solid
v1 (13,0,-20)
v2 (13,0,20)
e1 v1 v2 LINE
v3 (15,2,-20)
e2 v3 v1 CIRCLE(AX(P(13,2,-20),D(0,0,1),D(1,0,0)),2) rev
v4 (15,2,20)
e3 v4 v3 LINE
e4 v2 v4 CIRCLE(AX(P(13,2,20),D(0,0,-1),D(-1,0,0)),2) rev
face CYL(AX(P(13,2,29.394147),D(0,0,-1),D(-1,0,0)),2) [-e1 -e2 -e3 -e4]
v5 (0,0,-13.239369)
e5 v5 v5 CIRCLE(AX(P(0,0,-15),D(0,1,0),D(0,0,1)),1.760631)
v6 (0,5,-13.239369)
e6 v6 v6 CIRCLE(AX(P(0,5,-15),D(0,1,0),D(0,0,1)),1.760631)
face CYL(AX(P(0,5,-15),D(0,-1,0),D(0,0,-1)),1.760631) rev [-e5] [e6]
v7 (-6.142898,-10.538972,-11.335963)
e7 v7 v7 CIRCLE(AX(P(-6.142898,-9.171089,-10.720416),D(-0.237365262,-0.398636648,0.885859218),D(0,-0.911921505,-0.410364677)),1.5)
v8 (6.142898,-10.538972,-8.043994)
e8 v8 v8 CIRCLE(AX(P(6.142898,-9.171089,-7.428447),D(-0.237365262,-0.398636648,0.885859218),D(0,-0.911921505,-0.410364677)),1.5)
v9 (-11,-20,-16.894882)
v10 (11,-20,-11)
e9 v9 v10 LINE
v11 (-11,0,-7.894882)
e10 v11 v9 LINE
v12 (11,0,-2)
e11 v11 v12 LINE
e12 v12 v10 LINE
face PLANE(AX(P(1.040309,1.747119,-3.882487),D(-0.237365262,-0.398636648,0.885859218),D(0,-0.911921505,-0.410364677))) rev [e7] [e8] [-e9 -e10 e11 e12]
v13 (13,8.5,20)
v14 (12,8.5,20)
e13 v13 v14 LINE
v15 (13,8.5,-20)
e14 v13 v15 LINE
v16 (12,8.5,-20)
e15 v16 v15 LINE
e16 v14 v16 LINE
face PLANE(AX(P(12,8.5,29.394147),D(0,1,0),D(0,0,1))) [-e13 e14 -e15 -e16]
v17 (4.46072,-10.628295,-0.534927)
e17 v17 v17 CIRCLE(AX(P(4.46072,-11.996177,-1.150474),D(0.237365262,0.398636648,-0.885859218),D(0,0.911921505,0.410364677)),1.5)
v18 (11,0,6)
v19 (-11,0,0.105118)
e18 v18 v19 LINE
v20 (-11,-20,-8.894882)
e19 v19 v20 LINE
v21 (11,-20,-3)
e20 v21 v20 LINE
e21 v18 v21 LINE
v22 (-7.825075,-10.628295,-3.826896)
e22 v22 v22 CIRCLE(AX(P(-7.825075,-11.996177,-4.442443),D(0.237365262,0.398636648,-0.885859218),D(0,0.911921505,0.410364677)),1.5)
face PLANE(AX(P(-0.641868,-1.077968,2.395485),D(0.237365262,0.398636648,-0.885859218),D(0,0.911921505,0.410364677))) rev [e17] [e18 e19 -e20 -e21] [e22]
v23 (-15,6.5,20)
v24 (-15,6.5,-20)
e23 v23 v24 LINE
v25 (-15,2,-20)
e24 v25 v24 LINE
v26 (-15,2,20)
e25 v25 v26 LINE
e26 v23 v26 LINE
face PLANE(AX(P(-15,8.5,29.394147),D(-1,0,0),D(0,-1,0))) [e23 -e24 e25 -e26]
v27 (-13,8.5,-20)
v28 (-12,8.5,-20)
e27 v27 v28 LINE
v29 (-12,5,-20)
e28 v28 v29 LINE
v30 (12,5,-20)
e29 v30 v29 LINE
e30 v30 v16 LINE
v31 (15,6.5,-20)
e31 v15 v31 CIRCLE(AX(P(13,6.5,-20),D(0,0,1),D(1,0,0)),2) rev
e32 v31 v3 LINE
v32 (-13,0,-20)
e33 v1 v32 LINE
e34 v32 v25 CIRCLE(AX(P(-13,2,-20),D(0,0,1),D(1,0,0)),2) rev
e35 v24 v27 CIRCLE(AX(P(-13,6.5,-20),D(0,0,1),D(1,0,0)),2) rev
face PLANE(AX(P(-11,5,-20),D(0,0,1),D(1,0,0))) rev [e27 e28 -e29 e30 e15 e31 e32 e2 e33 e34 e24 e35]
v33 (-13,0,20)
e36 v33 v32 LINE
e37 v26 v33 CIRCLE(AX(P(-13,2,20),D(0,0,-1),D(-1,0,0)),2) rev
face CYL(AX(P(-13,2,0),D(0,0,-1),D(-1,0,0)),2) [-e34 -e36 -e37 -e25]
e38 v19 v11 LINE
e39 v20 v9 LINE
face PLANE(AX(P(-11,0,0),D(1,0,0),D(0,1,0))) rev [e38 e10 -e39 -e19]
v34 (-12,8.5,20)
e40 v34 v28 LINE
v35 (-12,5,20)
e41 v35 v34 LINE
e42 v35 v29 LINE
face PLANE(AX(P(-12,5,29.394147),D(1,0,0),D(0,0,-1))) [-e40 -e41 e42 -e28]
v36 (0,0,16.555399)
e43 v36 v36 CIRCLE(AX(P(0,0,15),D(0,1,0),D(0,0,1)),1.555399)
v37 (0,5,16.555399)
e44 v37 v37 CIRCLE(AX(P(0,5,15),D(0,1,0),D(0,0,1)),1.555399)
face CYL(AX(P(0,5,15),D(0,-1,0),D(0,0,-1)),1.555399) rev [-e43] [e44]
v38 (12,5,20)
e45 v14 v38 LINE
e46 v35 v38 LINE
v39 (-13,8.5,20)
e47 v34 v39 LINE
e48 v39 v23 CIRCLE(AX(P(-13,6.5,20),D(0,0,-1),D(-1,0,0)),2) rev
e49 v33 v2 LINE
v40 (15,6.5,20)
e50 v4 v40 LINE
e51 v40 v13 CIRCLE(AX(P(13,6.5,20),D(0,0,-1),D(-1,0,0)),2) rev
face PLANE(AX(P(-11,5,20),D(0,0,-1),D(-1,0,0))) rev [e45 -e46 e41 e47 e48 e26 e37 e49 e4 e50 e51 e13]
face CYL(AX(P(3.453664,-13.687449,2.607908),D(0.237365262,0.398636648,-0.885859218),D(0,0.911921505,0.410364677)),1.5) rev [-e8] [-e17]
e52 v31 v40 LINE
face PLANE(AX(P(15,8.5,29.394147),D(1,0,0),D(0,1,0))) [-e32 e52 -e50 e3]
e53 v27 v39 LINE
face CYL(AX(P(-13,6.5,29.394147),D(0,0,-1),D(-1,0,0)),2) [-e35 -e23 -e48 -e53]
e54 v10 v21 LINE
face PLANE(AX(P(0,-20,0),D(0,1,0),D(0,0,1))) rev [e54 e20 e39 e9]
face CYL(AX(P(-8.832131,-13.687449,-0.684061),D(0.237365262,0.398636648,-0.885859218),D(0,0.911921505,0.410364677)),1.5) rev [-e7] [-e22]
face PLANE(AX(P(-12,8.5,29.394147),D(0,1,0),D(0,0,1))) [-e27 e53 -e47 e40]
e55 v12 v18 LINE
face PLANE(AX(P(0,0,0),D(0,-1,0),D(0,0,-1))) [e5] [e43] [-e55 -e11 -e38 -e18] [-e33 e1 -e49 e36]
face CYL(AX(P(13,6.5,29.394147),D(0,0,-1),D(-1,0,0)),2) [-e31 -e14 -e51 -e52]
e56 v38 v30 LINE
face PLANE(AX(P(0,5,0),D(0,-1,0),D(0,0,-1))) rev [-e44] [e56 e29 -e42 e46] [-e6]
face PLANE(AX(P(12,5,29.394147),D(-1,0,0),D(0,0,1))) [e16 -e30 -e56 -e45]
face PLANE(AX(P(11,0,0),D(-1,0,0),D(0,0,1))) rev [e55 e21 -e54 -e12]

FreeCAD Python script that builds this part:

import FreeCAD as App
import Part
import Sketcher
Q = App.Units.Quantity


def edges_at(feature, points):
    """Names of the edges that pass closest to the given points."""
    edges = feature.Shape.Edges
    near = lambda p: min(range(len(edges)), key=lambda i: edges[i].distToShape(Part.Vertex(*p))[0])
    return sorted({f"Edge{near(p) + 1}" for p in points})


def add_polygon(sketch, points):
    """Adds a closed chain of lines whose ends are joined by coincident constraints."""
    first, n = sketch.GeometryCount, len(points)
    for a, b in zip(points, points[1:] + points[:1]):
        sketch.addGeometry(Part.LineSegment(App.Vector(*a, 0), App.Vector(*b, 0)), False)
    for i in range(n):
        sketch.addConstraint(Sketcher.Constraint("Coincident", first + i, 2, first + (i + 1) % n, 1))

doc = App.newDocument("Part")
body = doc.addObject("PartDesign::Body", "Body")

# Sketch on XZ plane
sketch1 = body.newObject("Sketcher::SketchObject", "Sketch")
sketch1.AttachmentSupport = (doc.getObject("XZ_Plane"), [""])
sketch1.MapMode = "FlatFace"
add_polygon(sketch1, [(-11, -20), (-11, 20), (11, 20), (11, -20)])  # lines 0-3
sketch1.addGeometry(Part.Circle(App.Vector(0, 15, 0), App.Vector(0, 0, 1), 1.6), False)  # 4
sketch1.addGeometry(Part.Circle(App.Vector(0, -15, 0), App.Vector(0, 0, 1), 1.8), False)  # 5
sketch1.addConstraint(Sketcher.Constraint("Vertical", 0))
sketch1.addConstraint(Sketcher.Constraint("Horizontal", 1))
sketch1.addConstraint(Sketcher.Constraint("Vertical", 2))
sketch1.addConstraint(Sketcher.Constraint("Horizontal", 3))
sketch1.addConstraint(Sketcher.Constraint("Symmetric", 4, 3, 5, 3, -1, 1))
sketch1.addConstraint(Sketcher.Constraint("Symmetric", 0, 2, 2, 2, -1, 1))
sketch1.addConstraint(Sketcher.Constraint("PointOnObject", 4, 3, -2))
sketch1.addConstraint(Sketcher.Constraint("DistanceX", 1, 1, 1, 2, Q("22 mm")))
sketch1.addConstraint(Sketcher.Constraint("DistanceY", 0, 1, 0, 2, Q("40 mm")))
sketch1.addConstraint(Sketcher.Constraint("DistanceY", -1, 1, 4, 3, Q("15 mm")))
sketch1.addConstraint(Sketcher.Constraint("Diameter", 4, Q("3.110798 mm")))
sketch1.addConstraint(Sketcher.Constraint("Diameter", 5, Q("3.521262 mm")))
pad1 = body.newObject("PartDesign::Pad", "Pad")
pad1.Profile = sketch1
pad1.Length = 5
pad1.Reversed = True

# Sketch on XY plane
sketch2 = body.newObject("Sketcher::SketchObject", "Sketch001")
sketch2.AttachmentSupport = (doc.getObject("XY_Plane"), [""])
sketch2.MapMode = "FlatFace"
sketch2.AttachmentOffset = App.Placement(App.Vector(0, 0, -20), App.Rotation())
add_polygon(sketch2, [(11, 5), (12, 5), (12, 8.5), (15, 8.5), (15, 0), (11, 0)])  # lines 0-5
add_polygon(sketch2, [(-11, 5), (-11, 0), (-15, 0), (-15, 8.5), (-12, 8.5), (-12, 5)])  # lines 6-11
sketch2.addConstraint(Sketcher.Constraint("Horizontal", 0))
sketch2.addConstraint(Sketcher.Constraint("Vertical", 1))
sketch2.addConstraint(Sketcher.Constraint("Horizontal", 2))
sketch2.addConstraint(Sketcher.Constraint("Vertical", 3))
sketch2.addConstraint(Sketcher.Constraint("Horizontal", 4))
sketch2.addConstraint(Sketcher.Constraint("Vertical", 5))
sketch2.addConstraint(Sketcher.Constraint("Vertical", 6))
sketch2.addConstraint(Sketcher.Constraint("Horizontal", 7))
sketch2.addConstraint(Sketcher.Constraint("Vertical", 8))
sketch2.addConstraint(Sketcher.Constraint("Horizontal", 9))
sketch2.addConstraint(Sketcher.Constraint("Vertical", 10))
sketch2.addConstraint(Sketcher.Constraint("Horizontal", 11))
sketch2.addConstraint(Sketcher.Constraint("Symmetric", 4, 2, 6, 2, -1, 1))
sketch2.addConstraint(Sketcher.Constraint("Symmetric", 3, 2, 7, 2, -2))
sketch2.addConstraint(Sketcher.Constraint("Symmetric", 1, 2, 9, 2, -2))
sketch2.addConstraint(Sketcher.Constraint("Horizontal", 5, 2, 10, 2))
sketch2.addConstraint(Sketcher.Constraint("DistanceX", 0, 1, 0, 2, Q("1 mm")))
sketch2.addConstraint(Sketcher.Constraint("DistanceX", 2, 1, 2, 2, Q("3 mm")))
sketch2.addConstraint(Sketcher.Constraint("DistanceY", 5, 1, 5, 2, Q("5 mm")))
sketch2.addConstraint(Sketcher.Constraint("DistanceY", 1, 1, 1, 2, Q("3.5 mm")))
sketch2.addConstraint(Sketcher.Constraint("DistanceX", -1, 1, 0, 2, Q("12 mm")))
pad2 = body.newObject("PartDesign::Pad", "Pad001")
pad2.Profile = sketch2
pad2.Length = 40
doc.recompute()

fillet = body.newObject("PartDesign::Fillet", "Fillet")
fillet.Base = (pad2, edges_at(pad2, [
    (15, 0, 0),
    (15, 8.5, 0),
    (-15, 0, 0),
    (-15, 8.5, 0),
]))
fillet.Radius = 2

# Sketch on XZ plane
sketch3 = body.newObject("Sketcher::SketchObject", "Sketch002")
sketch3.AttachmentSupport = (doc.getObject("XZ_Plane"), [""])
sketch3.MapMode = "FlatFace"
add_polygon(sketch3, [(11, 6), (-11, 0), (-11, -8), (11, -2)])  # lines 0-3
sketch3.addConstraint(Sketcher.Constraint("Vertical", 1))
sketch3.addConstraint(Sketcher.Constraint("Vertical", 3))
sketch3.addConstraint(Sketcher.Constraint("Parallel", 0, 2))
sketch3.addConstraint(Sketcher.Constraint("DistanceY", 1, 2, 1, 1, Q("8 mm")))
sketch3.addConstraint(Sketcher.Constraint("Angle", 0, Q("-165 deg")))
sketch3.addConstraint(Sketcher.Constraint("DistanceX", 0, 2, -1, 1, Q("11 mm")))
sketch3.addConstraint(Sketcher.Constraint("DistanceX", -1, 1, 2, 2, Q("11 mm")))
sketch3.addConstraint(Sketcher.Constraint("DistanceY", 2, 2, -1, 1, Q("2 mm")))

# Sketch on XZ plane
sketch4 = body.newObject("Sketcher::SketchObject", "Sketch003")
sketch4.AttachmentSupport = (doc.getObject("XZ_Plane"), [""])
sketch4.MapMode = "FlatFace"
sketch4.AttachmentOffset = App.Placement(App.Vector(0, 0, 20), App.Rotation())
add_polygon(sketch4, [(11, -11), (11, -3), (-11, -9), (-11, -17)])  # lines 0-3
sketch4.addConstraint(Sketcher.Constraint("Vertical", 0))
sketch4.addConstraint(Sketcher.Constraint("Vertical", 2))
sketch4.addConstraint(Sketcher.Constraint("Parallel", 1, 3))
sketch4.addConstraint(Sketcher.Constraint("DistanceY", 0, 1, 0, 2, Q("8 mm")))
sketch4.addConstraint(Sketcher.Constraint("Angle", 1, Q("-165 deg")))
sketch4.addConstraint(Sketcher.Constraint("DistanceX", -1, 1, 0, 2, Q("11 mm")))
sketch4.addConstraint(Sketcher.Constraint("DistanceY", 0, 2, -1, 1, Q("3 mm")))
sketch4.addConstraint(Sketcher.Constraint("DistanceX", 1, 2, -1, 1, Q("11 mm")))

additiveloft = body.newObject("PartDesign::AdditiveLoft", "AdditiveLoft")
additiveloft.Profile = sketch3
additiveloft.Sections = [sketch4]

# Sketch on an angled plane
sketch5 = body.newObject("Sketcher::SketchObject", "Sketch004")
sketch5.Placement = App.Placement(App.Vector(1.040309, 1.747119, -3.882487), App.Rotation(App.Vector(0.971420471, -0.097406319, 0.216458487), App.Vector(0, 0.911921504, 0.410364677), App.Vector(-0.237365262, -0.398636648, 0.885859218), "ZXY"))
sketch5.addGeometry(Part.Circle(App.Vector(5.3, -11.4, 0), App.Vector(0, 0, 1), 1.5), False)
sketch5.addGeometry(Part.Circle(App.Vector(-7.4, -12.8, 0), App.Vector(0, 0, 1), 1.5), False)
sketch5.addConstraint(Sketcher.Constraint("Equal", 0, 1))
sketch5.addConstraint(Sketcher.Constraint("Diameter", 0, Q("3 mm")))
sketch5.addConstraint(Sketcher.Constraint("DistanceX", -1, 1, 0, 3, Q("5.252708 mm")))
sketch5.addConstraint(Sketcher.Constraint("DistanceX", 1, 3, -1, 1, Q("7.394539 mm")))
sketch5.addConstraint(Sketcher.Constraint("DistanceY", 0, 3, -1, 1, Q("11.411686 mm")))
sketch5.addConstraint(Sketcher.Constraint("DistanceY", 1, 3, -1, 1, Q("12.762594 mm")))
pocket1 = body.newObject("PartDesign::Pocket", "Pocket")
pocket1.Profile = sketch5
pocket1.Length = 7.086874
pocket1.Reversed = True

doc.recompute()
